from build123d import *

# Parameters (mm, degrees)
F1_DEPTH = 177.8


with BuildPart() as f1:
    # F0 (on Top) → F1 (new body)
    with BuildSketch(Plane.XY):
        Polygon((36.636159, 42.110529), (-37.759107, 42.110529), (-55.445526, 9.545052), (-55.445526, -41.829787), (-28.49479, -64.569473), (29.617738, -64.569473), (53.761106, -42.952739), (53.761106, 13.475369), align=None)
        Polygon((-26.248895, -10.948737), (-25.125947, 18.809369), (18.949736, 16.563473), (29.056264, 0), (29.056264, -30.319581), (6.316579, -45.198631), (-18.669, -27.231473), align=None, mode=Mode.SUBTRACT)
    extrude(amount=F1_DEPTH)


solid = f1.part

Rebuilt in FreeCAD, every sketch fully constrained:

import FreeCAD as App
import Part
import Sketcher
Q = App.Units.Quantity


def add_polygon(sketch, points):
    """Adds a closed chain of lines whose ends are joined by coincident constraints."""
    first, n = sketch.GeometryCount, len(points)
    for a, b in zip(points, points[1:] + points[:1]):
        sketch.addGeometry(Part.LineSegment(App.Vector(*a, 0), App.Vector(*b, 0)), False)
    for i in range(n):
        sketch.addConstraint(Sketcher.Constraint("Coincident", first + i, 2, first + (i + 1) % n, 1))

doc = App.newDocument("Part")
params = doc.addObject("Spreadsheet::Sheet", "Params")
for row, (alias, value) in enumerate([
    ("pad1_length", "7 in"),
], start=1):
    params.set(f"A{row}", alias)
    params.set(f"B{row}", "=" + value)
    params.setAlias(f"B{row}", alias)

body = doc.addObject("PartDesign::Body", "Body")

sketch1 = body.newObject("Sketcher::SketchObject", "Sketch")
sketch1.AttachmentSupport = (doc.getObject("XY_Plane"), [""])
sketch1.MapMode = "FlatFace"
add_polygon(sketch1, [(37, 42), (-38, 42), (-55, 10), (-55, -42), (-28, -65), (30, -65), (54, -43), (54, 13)])
add_polygon(sketch1, [(-19, -27), (-26, -11), (-25, 19), (19, 17), (29, 0), (29, -30), (6, -45)])
sketch1.addConstraint(Sketcher.Constraint("Horizontal", 0))
sketch1.addConstraint(Sketcher.Constraint("Vertical", 2))
sketch1.addConstraint(Sketcher.Constraint("Horizontal", 4))
sketch1.addConstraint(Sketcher.Constraint("Vertical", 6))
sketch1.addConstraint(Sketcher.Constraint("Vertical", 12))
sketch1.addConstraint(Sketcher.Constraint("PointOnObject", 11, 2, -1))
sketch1.addConstraint(Sketcher.Constraint("DistanceY", 3, 2, 0, 2, Q("4.2000001 in")))
sketch1.addConstraint(Sketcher.Constraint("DistanceY", 3, 2, 14, 2, Q("1.47 in")))
sketch1.addConstraint(Sketcher.Constraint("DistanceX", 14, 2, -1, 1, Q("0.735 in")))
sketch1.addConstraint(Sketcher.Constraint("DistanceY", 2, 2, 2, 1, Q("51.374839 mm")))
sketch1.addConstraint(Sketcher.Constraint("DistanceY", 6, 1, 6, 2, Q("56.428108 mm")))
sketch1.addConstraint(Sketcher.Constraint("DistanceY", 12, 2, 12, 1, Q("30.319581 mm")))
sketch1.addConstraint(Sketcher.Constraint("Distance", 1, Q("37.058328 mm")))
sketch1.addConstraint(Sketcher.Constraint("Distance", 3, Q("35.262381 mm")))
sketch1.addConstraint(Sketcher.Constraint("DistanceX", 0, 2, 0, 1, Q("74.395266 mm")))
sketch1.addConstraint(Sketcher.Constraint("DistanceX", 4, 1, 4, 2, Q("58.112528 mm")))
sketch1.addConstraint(Sketcher.Constraint("DistanceY", -1, 1, 0, 2, Q("42.110529 mm")))
sketch1.addConstraint(Sketcher.Constraint("DistanceX", 3, 2, -1, 1, Q("28.49479 mm")))
sketch1.addConstraint(Sketcher.Constraint("DistanceY", 5, 2, -1, 1, Q("42.952739 mm")))
sketch1.addConstraint(Sketcher.Constraint("DistanceX", -1, 1, 7, 2, Q("36.636159 mm")))
sketch1.addConstraint(Sketcher.Constraint("DistanceY", -1, 1, 9, 2, Q("18.809369 mm")))
sketch1.addConstraint(Sketcher.Constraint("DistanceX", -1, 1, 13, 2, Q("6.316579 mm")))
sketch1.addConstraint(Sketcher.Constraint("DistanceY", 13, 2, -1, 1, Q("45.198631 mm")))
sketch1.addConstraint(Sketcher.Constraint("DistanceX", 2, 2, 5, 2, Q("109.206632 mm")))
sketch1.addConstraint(Sketcher.Constraint("DistanceX", 1, 2, 8, 2, Q("29.196631 mm")))
sketch1.addConstraint(Sketcher.Constraint("DistanceY", 8, 2, 1, 2, Q("20.493789 mm")))
sketch1.addConstraint(Sketcher.Constraint("DistanceX", 0, 2, 9, 2, Q("12.63316 mm")))
sketch1.addConstraint(Sketcher.Constraint("DistanceX", 10, 2, 6, 2, Q("34.81137 mm")))
sketch1.addConstraint(Sketcher.Constraint("DistanceY", 8, 2, 10, 2, Q("27.51221 mm")))
sketch1.addConstraint(Sketcher.Constraint("DistanceX", 11, 2, 6, 2, Q("24.704842 mm")))
pad1 = body.newObject("PartDesign::Pad", "Pad")
pad1.Profile = sketch1
pad1.setExpression("Length", "Params.pad1_length")

doc.recompute()
